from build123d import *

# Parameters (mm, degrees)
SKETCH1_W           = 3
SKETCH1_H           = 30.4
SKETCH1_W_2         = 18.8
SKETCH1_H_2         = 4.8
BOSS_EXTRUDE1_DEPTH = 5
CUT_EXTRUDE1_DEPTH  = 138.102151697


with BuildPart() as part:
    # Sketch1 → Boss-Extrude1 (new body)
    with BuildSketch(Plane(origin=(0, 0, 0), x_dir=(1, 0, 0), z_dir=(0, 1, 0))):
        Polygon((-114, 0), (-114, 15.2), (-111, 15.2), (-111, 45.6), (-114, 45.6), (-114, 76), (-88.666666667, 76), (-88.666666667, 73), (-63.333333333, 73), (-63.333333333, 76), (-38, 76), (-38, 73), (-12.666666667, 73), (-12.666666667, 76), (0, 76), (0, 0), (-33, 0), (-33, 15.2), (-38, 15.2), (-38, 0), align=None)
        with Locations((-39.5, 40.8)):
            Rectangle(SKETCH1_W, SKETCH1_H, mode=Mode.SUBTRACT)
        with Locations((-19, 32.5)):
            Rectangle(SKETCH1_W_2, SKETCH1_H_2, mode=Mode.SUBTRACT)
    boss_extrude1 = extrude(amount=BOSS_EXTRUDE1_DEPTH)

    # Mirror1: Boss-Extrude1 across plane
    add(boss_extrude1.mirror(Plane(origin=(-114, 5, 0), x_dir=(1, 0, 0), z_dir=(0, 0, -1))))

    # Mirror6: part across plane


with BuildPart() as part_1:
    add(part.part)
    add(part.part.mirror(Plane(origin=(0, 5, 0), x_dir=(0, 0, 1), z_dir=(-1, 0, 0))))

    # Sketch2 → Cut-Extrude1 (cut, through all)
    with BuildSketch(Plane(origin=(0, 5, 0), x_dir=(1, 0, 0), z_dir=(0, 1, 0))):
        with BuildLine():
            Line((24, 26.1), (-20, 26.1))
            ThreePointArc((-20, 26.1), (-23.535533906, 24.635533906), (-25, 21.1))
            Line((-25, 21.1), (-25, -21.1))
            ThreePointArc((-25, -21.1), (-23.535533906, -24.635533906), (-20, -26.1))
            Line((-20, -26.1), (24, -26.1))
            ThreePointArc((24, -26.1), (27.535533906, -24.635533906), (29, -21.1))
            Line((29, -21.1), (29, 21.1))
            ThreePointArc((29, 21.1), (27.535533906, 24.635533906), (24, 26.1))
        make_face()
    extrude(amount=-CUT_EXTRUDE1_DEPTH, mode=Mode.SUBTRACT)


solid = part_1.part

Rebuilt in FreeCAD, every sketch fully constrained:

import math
import FreeCAD as App
import Part
import Sketcher
Q = App.Units.Quantity


def add_polygon(sketch, points):
    """Adds a closed chain of lines whose ends are joined by coincident constraints."""
    first, n = sketch.GeometryCount, len(points)
    for a, b in zip(points, points[1:] + points[:1]):
        sketch.addGeometry(Part.LineSegment(App.Vector(*a, 0), App.Vector(*b, 0)), False)
    for i in range(n):
        sketch.addConstraint(Sketcher.Constraint("Coincident", first + i, 2, first + (i + 1) % n, 1))

doc = App.newDocument("Part")
body = doc.addObject("PartDesign::Body", "Body")

# Sketch on XZ plane
sketch1 = body.newObject("Sketcher::SketchObject", "Sketch")
sketch1.AttachmentSupport = (doc.getObject("XZ_Plane"), [""])
sketch1.MapMode = "FlatFace"
add_polygon(sketch1, [(-114, -15.2), (-114, 0), (-38, 0), (-38, -15.2), (-33, -15.2), (-33, 0), (0, 0), (0, -76), (-12.7, -76), (-12.7, -73), (-38, -73), (-38, -76), (-63.3, -76), (-63.3, -73), (-88.7, -73), (-88.7, -76), (-114, -76), (-114, -45.6), (-111, -45.6), (-111, -15.2)])  # lines 0-19
add_polygon(sketch1, [(-28.4, -30.1), (-28.4, -34.9), (-9.6, -34.9), (-9.6, -30.1)])  # lines 20-23
add_polygon(sketch1, [(-41, -25.6), (-41, -56), (-38, -56), (-38, -25.6)])  # lines 24-27
sketch1.addConstraint([
    Sketcher.Constraint("Vertical", 0),
    Sketcher.Constraint("Horizontal", 1),
    Sketcher.Constraint("Vertical", 2),
    Sketcher.Constraint("Horizontal", 3),
    Sketcher.Constraint("Vertical", 4),
    Sketcher.Constraint("Horizontal", 5),
    Sketcher.Constraint("Vertical", 6),
    Sketcher.Constraint("Horizontal", 7),
    Sketcher.Constraint("Vertical", 8),
    Sketcher.Constraint("Horizontal", 9),
    Sketcher.Constraint("Vertical", 10),
    Sketcher.Constraint("Horizontal", 11),
    Sketcher.Constraint("Vertical", 12),
    Sketcher.Constraint("Horizontal", 13),
    Sketcher.Constraint("Vertical", 14),
    Sketcher.Constraint("Horizontal", 15),
    Sketcher.Constraint("Vertical", 16),
    Sketcher.Constraint("Horizontal", 17),
    Sketcher.Constraint("Vertical", 18),
    Sketcher.Constraint("Horizontal", 19),
    Sketcher.Constraint("Vertical", 20),
    Sketcher.Constraint("Horizontal", 21),
    Sketcher.Constraint("Vertical", 22),
    Sketcher.Constraint("Horizontal", 23),
    Sketcher.Constraint("Vertical", 24),
    Sketcher.Constraint("Horizontal", 25),
    Sketcher.Constraint("Vertical", 26),
    Sketcher.Constraint("Horizontal", 27),
    Sketcher.Constraint("Coincident", 5, 2, -1, 1),
    Sketcher.Constraint("PointOnObject", 0, 2, -1),
    Sketcher.Constraint("Horizontal", 7, 2, 10, 2),
    Sketcher.Constraint("Horizontal", 9, 2, 12, 2),
    Sketcher.Constraint("Horizontal", 11, 2, 14, 2),
    Sketcher.Constraint("Horizontal", 3, 2, 18, 2),
    Sketcher.Constraint("Vertical", 2, 2, 9, 2),
    Sketcher.Constraint("Vertical", 0, 2, 15, 2),
    Sketcher.Constraint("Vertical", 10, 2, 25, 2),
    Sketcher.Constraint("Equal", 9, 11),
    Sketcher.Constraint("Equal", 11, 13),
    Sketcher.Constraint("Equal", 13, 15),
    Sketcher.Constraint("Equal", 19, 25),
    Sketcher.Constraint("Equal", 1, 6),
    Sketcher.Constraint("Equal", 27, 8),
    Sketcher.Constraint("Equal", 16, 18),
    Sketcher.Constraint("Equal", 18, 24),
    Sketcher.Constraint("DistanceX", 1, 1, 1, 2, Q("76 mm")),
    Sketcher.Constraint("DistanceX", 3, 1, 3, 2, Q("5 mm")),
    Sketcher.Constraint("DistanceX", 5, 1, 5, 2, Q("33 mm")),
    Sketcher.Constraint("DistanceX", 17, 1, 17, 2, Q("3 mm")),
    Sketcher.Constraint("DistanceX", 21, 1, 21, 2, Q("18.8 mm")),
    Sketcher.Constraint("DistanceY", 0, 1, 0, 2, Q("15.2 mm")),
    Sketcher.Constraint("DistanceY", 20, 2, 20, 1, Q("4.8 mm")),
    Sketcher.Constraint("DistanceY", 24, 2, -1, 1, Q("56 mm")),
    Sketcher.Constraint("DistanceX", 20, 2, -1, 1, Q("28.4 mm")),
    Sketcher.Constraint("DistanceY", 20, 2, -1, 1, Q("34.9 mm")),
])
pad1 = body.newObject("PartDesign::Pad", "Pad")
pad1.Profile = sketch1
pad1.Length = 5
pad1.Reversed = True
doc.recompute()

mirrored = body.newObject("PartDesign::Mirrored", "Mirrored")
mirrored.Originals = [pad1]
mirrored.MirrorPlane = (doc.getObject("XY_Plane"), [""])
body.Tip = mirrored
body2 = doc.addObject("PartDesign::Body", "Body001")
doc.recompute()

body2.BaseFeature = body
doc.recompute()

mirroring = doc.addObject("Part::Mirroring", "Mirroring")
mirroring.Source = body
mirroring.Base = App.Vector(0, 5, 0)
mirroring.Normal = App.Vector(-1, 0, 0)
body3 = doc.addObject("PartDesign::Body", "Body002")
body3.BaseFeature = mirroring
boolean = body2.newObject("PartDesign::Boolean", "Boolean")
boolean.Type = "Fuse"
boolean.addObjects([body3])
doc.recompute()

# Sketch on XZ plane
sketch2 = body2.newObject("Sketcher::SketchObject", "Sketch001")
sketch2.AttachmentSupport = (doc.getObject("XZ_Plane001"), [""])
sketch2.MapMode = "FlatFace"
sketch2.AttachmentOffset = App.Placement(App.Vector(0, 0, -5), App.Rotation())
sketch2.addGeometry([
    Part.LineSegment(App.Vector(24, -26, 0), App.Vector(-20, -26, 0)),  # 0
    Part.ArcOfCircle(Part.Circle(App.Vector(-20, -21, 0), App.Vector(0, 0, 1), 5), math.radians(180), math.radians(270)),  # 1
    Part.LineSegment(App.Vector(-25, -21, 0), App.Vector(-25, 21, 0)),  # 2
    Part.ArcOfCircle(Part.Circle(App.Vector(-20, 21, 0), App.Vector(0, 0, 1), 5), math.radians(90), math.radians(180)),  # 3
    Part.LineSegment(App.Vector(-20, 26, 0), App.Vector(24, 26, 0)),  # 4
    Part.ArcOfCircle(Part.Circle(App.Vector(24, 21, 0), App.Vector(0, 0, 1), 5), math.radians(0), math.radians(90)),  # 5
    Part.LineSegment(App.Vector(29, 21, 0), App.Vector(29, -21, 0)),  # 6
    Part.ArcOfCircle(Part.Circle(App.Vector(24, -21, 0), App.Vector(0, 0, 1), 5), math.radians(-90), math.radians(0)),  # 7
], False)
sketch2.addConstraint([
    Sketcher.Constraint("Tangent", 0, 2, 1, 2),
    Sketcher.Constraint("Tangent", 1, 1, 2, 1),
    Sketcher.Constraint("Tangent", 2, 2, 3, 2),
    Sketcher.Constraint("Tangent", 3, 1, 4, 1),
    Sketcher.Constraint("Tangent", 4, 2, 5, 2),
    Sketcher.Constraint("Tangent", 5, 1, 6, 1),
    Sketcher.Constraint("Tangent", 6, 2, 7, 2),
    Sketcher.Constraint("Tangent", 7, 1, 0, 1),
    Sketcher.Constraint("Horizontal", 0),
    Sketcher.Constraint("Vertical", 2),
    Sketcher.Constraint("Horizontal", 4),
    Sketcher.Constraint("Vertical", 6),
    Sketcher.Constraint("Equal", 1, 3),
    Sketcher.Constraint("Equal", 3, 5),
    Sketcher.Constraint("Equal", 5, 7),
    Sketcher.Constraint("Radius", 1, Q("5 mm")),
    Sketcher.Constraint("DistanceX", 0, 2, 0, 1, Q("44 mm")),
    Sketcher.Constraint("DistanceY", 2, 1, 2, 2, Q("42.2 mm")),
    Sketcher.Constraint("DistanceX", 1, 3, -1, 1, Q("20 mm")),
    Sketcher.Constraint("DistanceY", 1, 3, -1, 1, Q("21.1 mm")),
])
pocket1 = body2.newObject("PartDesign::Pocket", "Pocket")
pocket1.Profile = sketch2
pocket1.Type = "ThroughAll"
pocket1.Reversed = True
mirroring.Visibility = False

doc.recompute()
